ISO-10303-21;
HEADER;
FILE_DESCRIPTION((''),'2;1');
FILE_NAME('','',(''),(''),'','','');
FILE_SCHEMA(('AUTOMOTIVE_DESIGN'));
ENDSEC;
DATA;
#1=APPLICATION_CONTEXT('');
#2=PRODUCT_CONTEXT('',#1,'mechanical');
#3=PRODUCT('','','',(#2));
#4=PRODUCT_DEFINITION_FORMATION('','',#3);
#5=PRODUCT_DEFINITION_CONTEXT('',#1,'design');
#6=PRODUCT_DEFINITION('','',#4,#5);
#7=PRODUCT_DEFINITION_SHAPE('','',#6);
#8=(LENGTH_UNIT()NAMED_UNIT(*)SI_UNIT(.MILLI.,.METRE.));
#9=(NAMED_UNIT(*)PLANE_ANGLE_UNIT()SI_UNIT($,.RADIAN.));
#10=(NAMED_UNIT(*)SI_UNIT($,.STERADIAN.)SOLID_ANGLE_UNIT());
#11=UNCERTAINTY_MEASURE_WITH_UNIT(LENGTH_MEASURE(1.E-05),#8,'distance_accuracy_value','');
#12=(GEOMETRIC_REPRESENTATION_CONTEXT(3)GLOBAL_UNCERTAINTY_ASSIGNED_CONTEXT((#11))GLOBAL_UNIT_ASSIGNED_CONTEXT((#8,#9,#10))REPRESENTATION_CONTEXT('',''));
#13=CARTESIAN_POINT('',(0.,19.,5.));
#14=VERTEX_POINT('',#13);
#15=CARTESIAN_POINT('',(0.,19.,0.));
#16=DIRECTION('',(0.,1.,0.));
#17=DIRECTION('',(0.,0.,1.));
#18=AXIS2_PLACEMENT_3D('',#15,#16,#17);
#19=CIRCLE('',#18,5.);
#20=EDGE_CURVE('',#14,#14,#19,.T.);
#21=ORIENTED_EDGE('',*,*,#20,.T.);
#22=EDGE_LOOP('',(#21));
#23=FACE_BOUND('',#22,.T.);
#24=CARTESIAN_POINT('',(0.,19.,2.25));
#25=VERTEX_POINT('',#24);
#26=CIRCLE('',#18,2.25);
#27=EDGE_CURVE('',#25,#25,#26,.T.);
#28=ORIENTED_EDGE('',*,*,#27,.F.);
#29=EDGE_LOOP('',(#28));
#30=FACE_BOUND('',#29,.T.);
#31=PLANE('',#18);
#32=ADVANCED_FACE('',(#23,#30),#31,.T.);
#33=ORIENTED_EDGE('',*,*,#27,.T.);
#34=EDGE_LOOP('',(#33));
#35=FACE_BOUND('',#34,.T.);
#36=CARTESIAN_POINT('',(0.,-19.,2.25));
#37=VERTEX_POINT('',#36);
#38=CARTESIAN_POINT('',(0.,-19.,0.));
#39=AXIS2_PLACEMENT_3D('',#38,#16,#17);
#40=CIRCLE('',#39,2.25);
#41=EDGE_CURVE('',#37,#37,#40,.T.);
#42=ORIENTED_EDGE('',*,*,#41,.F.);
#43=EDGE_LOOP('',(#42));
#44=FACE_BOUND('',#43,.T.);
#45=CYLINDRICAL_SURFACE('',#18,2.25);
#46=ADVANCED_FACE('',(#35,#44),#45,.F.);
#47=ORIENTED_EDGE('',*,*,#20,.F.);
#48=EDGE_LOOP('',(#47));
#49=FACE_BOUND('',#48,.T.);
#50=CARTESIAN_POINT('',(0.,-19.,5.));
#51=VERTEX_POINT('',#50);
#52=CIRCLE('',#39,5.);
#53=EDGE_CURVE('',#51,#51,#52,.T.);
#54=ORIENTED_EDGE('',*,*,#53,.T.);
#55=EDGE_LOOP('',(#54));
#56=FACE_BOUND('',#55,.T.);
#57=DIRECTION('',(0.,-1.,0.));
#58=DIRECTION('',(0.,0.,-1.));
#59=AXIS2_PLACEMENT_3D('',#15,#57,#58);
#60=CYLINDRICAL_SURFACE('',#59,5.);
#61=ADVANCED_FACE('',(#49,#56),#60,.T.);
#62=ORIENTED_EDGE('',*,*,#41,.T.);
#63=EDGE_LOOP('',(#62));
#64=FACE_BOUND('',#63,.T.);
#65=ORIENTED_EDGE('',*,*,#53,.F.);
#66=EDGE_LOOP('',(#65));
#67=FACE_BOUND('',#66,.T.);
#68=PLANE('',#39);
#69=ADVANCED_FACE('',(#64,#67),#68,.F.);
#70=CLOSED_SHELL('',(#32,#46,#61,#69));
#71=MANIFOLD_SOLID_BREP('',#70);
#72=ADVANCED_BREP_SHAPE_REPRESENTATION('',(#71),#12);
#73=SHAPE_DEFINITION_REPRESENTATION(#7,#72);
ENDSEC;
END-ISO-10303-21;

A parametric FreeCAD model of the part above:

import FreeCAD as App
import Part
import Sketcher

V = App.Vector
Q = App.Units.Quantity

doc = App.newDocument("Part")
body = doc.addObject("PartDesign::Body", "Body")

# Sketch on XZ plane
sketch1 = doc.addObject("Sketcher::SketchObject", "Sketch")
body.addObject(sketch1)
sketch1.AttachmentSupport = (doc.XZ_Plane, [""])
sketch1.MapMode = "FlatFace"
sketch1.addGeometry(Part.Circle(V(0, 0, 0), V(0, 0, 1), 5), False)
sketch1.addConstraint([
    Sketcher.Constraint("Coincident", 0, 3, -1, 1),
    Sketcher.Constraint("Diameter", 0, Q("10 mm")),
])
pad1 = doc.addObject("PartDesign::Pad", "Pad")
body.addObject(pad1)
pad1.Profile = sketch1
pad1.Length = 38
pad1.Midplane = True

# Sketch on XZ plane
sketch2 = doc.addObject("Sketcher::SketchObject", "Sketch001")
body.addObject(sketch2)
sketch2.AttachmentSupport = (doc.XZ_Plane, [""])
sketch2.MapMode = "FlatFace"
sketch2.AttachmentOffset = App.Placement(V(0, 0, -19), App.Rotation())
sketch2.addGeometry(Part.Circle(V(0, 0, 0), V(0, 0, 1), 2.2), False)
sketch2.addConstraint([
    Sketcher.Constraint("Coincident", 0, 3, -1, 1),
    Sketcher.Constraint("Diameter", 0, Q("4.5 mm")),
])
doc.recompute()
hole = doc.addObject("PartDesign::Hole", "Hole")
body.addObject(hole)
hole.Profile = sketch2
hole.ThreadType = "None"
hole.Diameter = 4.5
hole.DepthType = "ThroughAll"
hole.Reversed = True

doc.recompute()
